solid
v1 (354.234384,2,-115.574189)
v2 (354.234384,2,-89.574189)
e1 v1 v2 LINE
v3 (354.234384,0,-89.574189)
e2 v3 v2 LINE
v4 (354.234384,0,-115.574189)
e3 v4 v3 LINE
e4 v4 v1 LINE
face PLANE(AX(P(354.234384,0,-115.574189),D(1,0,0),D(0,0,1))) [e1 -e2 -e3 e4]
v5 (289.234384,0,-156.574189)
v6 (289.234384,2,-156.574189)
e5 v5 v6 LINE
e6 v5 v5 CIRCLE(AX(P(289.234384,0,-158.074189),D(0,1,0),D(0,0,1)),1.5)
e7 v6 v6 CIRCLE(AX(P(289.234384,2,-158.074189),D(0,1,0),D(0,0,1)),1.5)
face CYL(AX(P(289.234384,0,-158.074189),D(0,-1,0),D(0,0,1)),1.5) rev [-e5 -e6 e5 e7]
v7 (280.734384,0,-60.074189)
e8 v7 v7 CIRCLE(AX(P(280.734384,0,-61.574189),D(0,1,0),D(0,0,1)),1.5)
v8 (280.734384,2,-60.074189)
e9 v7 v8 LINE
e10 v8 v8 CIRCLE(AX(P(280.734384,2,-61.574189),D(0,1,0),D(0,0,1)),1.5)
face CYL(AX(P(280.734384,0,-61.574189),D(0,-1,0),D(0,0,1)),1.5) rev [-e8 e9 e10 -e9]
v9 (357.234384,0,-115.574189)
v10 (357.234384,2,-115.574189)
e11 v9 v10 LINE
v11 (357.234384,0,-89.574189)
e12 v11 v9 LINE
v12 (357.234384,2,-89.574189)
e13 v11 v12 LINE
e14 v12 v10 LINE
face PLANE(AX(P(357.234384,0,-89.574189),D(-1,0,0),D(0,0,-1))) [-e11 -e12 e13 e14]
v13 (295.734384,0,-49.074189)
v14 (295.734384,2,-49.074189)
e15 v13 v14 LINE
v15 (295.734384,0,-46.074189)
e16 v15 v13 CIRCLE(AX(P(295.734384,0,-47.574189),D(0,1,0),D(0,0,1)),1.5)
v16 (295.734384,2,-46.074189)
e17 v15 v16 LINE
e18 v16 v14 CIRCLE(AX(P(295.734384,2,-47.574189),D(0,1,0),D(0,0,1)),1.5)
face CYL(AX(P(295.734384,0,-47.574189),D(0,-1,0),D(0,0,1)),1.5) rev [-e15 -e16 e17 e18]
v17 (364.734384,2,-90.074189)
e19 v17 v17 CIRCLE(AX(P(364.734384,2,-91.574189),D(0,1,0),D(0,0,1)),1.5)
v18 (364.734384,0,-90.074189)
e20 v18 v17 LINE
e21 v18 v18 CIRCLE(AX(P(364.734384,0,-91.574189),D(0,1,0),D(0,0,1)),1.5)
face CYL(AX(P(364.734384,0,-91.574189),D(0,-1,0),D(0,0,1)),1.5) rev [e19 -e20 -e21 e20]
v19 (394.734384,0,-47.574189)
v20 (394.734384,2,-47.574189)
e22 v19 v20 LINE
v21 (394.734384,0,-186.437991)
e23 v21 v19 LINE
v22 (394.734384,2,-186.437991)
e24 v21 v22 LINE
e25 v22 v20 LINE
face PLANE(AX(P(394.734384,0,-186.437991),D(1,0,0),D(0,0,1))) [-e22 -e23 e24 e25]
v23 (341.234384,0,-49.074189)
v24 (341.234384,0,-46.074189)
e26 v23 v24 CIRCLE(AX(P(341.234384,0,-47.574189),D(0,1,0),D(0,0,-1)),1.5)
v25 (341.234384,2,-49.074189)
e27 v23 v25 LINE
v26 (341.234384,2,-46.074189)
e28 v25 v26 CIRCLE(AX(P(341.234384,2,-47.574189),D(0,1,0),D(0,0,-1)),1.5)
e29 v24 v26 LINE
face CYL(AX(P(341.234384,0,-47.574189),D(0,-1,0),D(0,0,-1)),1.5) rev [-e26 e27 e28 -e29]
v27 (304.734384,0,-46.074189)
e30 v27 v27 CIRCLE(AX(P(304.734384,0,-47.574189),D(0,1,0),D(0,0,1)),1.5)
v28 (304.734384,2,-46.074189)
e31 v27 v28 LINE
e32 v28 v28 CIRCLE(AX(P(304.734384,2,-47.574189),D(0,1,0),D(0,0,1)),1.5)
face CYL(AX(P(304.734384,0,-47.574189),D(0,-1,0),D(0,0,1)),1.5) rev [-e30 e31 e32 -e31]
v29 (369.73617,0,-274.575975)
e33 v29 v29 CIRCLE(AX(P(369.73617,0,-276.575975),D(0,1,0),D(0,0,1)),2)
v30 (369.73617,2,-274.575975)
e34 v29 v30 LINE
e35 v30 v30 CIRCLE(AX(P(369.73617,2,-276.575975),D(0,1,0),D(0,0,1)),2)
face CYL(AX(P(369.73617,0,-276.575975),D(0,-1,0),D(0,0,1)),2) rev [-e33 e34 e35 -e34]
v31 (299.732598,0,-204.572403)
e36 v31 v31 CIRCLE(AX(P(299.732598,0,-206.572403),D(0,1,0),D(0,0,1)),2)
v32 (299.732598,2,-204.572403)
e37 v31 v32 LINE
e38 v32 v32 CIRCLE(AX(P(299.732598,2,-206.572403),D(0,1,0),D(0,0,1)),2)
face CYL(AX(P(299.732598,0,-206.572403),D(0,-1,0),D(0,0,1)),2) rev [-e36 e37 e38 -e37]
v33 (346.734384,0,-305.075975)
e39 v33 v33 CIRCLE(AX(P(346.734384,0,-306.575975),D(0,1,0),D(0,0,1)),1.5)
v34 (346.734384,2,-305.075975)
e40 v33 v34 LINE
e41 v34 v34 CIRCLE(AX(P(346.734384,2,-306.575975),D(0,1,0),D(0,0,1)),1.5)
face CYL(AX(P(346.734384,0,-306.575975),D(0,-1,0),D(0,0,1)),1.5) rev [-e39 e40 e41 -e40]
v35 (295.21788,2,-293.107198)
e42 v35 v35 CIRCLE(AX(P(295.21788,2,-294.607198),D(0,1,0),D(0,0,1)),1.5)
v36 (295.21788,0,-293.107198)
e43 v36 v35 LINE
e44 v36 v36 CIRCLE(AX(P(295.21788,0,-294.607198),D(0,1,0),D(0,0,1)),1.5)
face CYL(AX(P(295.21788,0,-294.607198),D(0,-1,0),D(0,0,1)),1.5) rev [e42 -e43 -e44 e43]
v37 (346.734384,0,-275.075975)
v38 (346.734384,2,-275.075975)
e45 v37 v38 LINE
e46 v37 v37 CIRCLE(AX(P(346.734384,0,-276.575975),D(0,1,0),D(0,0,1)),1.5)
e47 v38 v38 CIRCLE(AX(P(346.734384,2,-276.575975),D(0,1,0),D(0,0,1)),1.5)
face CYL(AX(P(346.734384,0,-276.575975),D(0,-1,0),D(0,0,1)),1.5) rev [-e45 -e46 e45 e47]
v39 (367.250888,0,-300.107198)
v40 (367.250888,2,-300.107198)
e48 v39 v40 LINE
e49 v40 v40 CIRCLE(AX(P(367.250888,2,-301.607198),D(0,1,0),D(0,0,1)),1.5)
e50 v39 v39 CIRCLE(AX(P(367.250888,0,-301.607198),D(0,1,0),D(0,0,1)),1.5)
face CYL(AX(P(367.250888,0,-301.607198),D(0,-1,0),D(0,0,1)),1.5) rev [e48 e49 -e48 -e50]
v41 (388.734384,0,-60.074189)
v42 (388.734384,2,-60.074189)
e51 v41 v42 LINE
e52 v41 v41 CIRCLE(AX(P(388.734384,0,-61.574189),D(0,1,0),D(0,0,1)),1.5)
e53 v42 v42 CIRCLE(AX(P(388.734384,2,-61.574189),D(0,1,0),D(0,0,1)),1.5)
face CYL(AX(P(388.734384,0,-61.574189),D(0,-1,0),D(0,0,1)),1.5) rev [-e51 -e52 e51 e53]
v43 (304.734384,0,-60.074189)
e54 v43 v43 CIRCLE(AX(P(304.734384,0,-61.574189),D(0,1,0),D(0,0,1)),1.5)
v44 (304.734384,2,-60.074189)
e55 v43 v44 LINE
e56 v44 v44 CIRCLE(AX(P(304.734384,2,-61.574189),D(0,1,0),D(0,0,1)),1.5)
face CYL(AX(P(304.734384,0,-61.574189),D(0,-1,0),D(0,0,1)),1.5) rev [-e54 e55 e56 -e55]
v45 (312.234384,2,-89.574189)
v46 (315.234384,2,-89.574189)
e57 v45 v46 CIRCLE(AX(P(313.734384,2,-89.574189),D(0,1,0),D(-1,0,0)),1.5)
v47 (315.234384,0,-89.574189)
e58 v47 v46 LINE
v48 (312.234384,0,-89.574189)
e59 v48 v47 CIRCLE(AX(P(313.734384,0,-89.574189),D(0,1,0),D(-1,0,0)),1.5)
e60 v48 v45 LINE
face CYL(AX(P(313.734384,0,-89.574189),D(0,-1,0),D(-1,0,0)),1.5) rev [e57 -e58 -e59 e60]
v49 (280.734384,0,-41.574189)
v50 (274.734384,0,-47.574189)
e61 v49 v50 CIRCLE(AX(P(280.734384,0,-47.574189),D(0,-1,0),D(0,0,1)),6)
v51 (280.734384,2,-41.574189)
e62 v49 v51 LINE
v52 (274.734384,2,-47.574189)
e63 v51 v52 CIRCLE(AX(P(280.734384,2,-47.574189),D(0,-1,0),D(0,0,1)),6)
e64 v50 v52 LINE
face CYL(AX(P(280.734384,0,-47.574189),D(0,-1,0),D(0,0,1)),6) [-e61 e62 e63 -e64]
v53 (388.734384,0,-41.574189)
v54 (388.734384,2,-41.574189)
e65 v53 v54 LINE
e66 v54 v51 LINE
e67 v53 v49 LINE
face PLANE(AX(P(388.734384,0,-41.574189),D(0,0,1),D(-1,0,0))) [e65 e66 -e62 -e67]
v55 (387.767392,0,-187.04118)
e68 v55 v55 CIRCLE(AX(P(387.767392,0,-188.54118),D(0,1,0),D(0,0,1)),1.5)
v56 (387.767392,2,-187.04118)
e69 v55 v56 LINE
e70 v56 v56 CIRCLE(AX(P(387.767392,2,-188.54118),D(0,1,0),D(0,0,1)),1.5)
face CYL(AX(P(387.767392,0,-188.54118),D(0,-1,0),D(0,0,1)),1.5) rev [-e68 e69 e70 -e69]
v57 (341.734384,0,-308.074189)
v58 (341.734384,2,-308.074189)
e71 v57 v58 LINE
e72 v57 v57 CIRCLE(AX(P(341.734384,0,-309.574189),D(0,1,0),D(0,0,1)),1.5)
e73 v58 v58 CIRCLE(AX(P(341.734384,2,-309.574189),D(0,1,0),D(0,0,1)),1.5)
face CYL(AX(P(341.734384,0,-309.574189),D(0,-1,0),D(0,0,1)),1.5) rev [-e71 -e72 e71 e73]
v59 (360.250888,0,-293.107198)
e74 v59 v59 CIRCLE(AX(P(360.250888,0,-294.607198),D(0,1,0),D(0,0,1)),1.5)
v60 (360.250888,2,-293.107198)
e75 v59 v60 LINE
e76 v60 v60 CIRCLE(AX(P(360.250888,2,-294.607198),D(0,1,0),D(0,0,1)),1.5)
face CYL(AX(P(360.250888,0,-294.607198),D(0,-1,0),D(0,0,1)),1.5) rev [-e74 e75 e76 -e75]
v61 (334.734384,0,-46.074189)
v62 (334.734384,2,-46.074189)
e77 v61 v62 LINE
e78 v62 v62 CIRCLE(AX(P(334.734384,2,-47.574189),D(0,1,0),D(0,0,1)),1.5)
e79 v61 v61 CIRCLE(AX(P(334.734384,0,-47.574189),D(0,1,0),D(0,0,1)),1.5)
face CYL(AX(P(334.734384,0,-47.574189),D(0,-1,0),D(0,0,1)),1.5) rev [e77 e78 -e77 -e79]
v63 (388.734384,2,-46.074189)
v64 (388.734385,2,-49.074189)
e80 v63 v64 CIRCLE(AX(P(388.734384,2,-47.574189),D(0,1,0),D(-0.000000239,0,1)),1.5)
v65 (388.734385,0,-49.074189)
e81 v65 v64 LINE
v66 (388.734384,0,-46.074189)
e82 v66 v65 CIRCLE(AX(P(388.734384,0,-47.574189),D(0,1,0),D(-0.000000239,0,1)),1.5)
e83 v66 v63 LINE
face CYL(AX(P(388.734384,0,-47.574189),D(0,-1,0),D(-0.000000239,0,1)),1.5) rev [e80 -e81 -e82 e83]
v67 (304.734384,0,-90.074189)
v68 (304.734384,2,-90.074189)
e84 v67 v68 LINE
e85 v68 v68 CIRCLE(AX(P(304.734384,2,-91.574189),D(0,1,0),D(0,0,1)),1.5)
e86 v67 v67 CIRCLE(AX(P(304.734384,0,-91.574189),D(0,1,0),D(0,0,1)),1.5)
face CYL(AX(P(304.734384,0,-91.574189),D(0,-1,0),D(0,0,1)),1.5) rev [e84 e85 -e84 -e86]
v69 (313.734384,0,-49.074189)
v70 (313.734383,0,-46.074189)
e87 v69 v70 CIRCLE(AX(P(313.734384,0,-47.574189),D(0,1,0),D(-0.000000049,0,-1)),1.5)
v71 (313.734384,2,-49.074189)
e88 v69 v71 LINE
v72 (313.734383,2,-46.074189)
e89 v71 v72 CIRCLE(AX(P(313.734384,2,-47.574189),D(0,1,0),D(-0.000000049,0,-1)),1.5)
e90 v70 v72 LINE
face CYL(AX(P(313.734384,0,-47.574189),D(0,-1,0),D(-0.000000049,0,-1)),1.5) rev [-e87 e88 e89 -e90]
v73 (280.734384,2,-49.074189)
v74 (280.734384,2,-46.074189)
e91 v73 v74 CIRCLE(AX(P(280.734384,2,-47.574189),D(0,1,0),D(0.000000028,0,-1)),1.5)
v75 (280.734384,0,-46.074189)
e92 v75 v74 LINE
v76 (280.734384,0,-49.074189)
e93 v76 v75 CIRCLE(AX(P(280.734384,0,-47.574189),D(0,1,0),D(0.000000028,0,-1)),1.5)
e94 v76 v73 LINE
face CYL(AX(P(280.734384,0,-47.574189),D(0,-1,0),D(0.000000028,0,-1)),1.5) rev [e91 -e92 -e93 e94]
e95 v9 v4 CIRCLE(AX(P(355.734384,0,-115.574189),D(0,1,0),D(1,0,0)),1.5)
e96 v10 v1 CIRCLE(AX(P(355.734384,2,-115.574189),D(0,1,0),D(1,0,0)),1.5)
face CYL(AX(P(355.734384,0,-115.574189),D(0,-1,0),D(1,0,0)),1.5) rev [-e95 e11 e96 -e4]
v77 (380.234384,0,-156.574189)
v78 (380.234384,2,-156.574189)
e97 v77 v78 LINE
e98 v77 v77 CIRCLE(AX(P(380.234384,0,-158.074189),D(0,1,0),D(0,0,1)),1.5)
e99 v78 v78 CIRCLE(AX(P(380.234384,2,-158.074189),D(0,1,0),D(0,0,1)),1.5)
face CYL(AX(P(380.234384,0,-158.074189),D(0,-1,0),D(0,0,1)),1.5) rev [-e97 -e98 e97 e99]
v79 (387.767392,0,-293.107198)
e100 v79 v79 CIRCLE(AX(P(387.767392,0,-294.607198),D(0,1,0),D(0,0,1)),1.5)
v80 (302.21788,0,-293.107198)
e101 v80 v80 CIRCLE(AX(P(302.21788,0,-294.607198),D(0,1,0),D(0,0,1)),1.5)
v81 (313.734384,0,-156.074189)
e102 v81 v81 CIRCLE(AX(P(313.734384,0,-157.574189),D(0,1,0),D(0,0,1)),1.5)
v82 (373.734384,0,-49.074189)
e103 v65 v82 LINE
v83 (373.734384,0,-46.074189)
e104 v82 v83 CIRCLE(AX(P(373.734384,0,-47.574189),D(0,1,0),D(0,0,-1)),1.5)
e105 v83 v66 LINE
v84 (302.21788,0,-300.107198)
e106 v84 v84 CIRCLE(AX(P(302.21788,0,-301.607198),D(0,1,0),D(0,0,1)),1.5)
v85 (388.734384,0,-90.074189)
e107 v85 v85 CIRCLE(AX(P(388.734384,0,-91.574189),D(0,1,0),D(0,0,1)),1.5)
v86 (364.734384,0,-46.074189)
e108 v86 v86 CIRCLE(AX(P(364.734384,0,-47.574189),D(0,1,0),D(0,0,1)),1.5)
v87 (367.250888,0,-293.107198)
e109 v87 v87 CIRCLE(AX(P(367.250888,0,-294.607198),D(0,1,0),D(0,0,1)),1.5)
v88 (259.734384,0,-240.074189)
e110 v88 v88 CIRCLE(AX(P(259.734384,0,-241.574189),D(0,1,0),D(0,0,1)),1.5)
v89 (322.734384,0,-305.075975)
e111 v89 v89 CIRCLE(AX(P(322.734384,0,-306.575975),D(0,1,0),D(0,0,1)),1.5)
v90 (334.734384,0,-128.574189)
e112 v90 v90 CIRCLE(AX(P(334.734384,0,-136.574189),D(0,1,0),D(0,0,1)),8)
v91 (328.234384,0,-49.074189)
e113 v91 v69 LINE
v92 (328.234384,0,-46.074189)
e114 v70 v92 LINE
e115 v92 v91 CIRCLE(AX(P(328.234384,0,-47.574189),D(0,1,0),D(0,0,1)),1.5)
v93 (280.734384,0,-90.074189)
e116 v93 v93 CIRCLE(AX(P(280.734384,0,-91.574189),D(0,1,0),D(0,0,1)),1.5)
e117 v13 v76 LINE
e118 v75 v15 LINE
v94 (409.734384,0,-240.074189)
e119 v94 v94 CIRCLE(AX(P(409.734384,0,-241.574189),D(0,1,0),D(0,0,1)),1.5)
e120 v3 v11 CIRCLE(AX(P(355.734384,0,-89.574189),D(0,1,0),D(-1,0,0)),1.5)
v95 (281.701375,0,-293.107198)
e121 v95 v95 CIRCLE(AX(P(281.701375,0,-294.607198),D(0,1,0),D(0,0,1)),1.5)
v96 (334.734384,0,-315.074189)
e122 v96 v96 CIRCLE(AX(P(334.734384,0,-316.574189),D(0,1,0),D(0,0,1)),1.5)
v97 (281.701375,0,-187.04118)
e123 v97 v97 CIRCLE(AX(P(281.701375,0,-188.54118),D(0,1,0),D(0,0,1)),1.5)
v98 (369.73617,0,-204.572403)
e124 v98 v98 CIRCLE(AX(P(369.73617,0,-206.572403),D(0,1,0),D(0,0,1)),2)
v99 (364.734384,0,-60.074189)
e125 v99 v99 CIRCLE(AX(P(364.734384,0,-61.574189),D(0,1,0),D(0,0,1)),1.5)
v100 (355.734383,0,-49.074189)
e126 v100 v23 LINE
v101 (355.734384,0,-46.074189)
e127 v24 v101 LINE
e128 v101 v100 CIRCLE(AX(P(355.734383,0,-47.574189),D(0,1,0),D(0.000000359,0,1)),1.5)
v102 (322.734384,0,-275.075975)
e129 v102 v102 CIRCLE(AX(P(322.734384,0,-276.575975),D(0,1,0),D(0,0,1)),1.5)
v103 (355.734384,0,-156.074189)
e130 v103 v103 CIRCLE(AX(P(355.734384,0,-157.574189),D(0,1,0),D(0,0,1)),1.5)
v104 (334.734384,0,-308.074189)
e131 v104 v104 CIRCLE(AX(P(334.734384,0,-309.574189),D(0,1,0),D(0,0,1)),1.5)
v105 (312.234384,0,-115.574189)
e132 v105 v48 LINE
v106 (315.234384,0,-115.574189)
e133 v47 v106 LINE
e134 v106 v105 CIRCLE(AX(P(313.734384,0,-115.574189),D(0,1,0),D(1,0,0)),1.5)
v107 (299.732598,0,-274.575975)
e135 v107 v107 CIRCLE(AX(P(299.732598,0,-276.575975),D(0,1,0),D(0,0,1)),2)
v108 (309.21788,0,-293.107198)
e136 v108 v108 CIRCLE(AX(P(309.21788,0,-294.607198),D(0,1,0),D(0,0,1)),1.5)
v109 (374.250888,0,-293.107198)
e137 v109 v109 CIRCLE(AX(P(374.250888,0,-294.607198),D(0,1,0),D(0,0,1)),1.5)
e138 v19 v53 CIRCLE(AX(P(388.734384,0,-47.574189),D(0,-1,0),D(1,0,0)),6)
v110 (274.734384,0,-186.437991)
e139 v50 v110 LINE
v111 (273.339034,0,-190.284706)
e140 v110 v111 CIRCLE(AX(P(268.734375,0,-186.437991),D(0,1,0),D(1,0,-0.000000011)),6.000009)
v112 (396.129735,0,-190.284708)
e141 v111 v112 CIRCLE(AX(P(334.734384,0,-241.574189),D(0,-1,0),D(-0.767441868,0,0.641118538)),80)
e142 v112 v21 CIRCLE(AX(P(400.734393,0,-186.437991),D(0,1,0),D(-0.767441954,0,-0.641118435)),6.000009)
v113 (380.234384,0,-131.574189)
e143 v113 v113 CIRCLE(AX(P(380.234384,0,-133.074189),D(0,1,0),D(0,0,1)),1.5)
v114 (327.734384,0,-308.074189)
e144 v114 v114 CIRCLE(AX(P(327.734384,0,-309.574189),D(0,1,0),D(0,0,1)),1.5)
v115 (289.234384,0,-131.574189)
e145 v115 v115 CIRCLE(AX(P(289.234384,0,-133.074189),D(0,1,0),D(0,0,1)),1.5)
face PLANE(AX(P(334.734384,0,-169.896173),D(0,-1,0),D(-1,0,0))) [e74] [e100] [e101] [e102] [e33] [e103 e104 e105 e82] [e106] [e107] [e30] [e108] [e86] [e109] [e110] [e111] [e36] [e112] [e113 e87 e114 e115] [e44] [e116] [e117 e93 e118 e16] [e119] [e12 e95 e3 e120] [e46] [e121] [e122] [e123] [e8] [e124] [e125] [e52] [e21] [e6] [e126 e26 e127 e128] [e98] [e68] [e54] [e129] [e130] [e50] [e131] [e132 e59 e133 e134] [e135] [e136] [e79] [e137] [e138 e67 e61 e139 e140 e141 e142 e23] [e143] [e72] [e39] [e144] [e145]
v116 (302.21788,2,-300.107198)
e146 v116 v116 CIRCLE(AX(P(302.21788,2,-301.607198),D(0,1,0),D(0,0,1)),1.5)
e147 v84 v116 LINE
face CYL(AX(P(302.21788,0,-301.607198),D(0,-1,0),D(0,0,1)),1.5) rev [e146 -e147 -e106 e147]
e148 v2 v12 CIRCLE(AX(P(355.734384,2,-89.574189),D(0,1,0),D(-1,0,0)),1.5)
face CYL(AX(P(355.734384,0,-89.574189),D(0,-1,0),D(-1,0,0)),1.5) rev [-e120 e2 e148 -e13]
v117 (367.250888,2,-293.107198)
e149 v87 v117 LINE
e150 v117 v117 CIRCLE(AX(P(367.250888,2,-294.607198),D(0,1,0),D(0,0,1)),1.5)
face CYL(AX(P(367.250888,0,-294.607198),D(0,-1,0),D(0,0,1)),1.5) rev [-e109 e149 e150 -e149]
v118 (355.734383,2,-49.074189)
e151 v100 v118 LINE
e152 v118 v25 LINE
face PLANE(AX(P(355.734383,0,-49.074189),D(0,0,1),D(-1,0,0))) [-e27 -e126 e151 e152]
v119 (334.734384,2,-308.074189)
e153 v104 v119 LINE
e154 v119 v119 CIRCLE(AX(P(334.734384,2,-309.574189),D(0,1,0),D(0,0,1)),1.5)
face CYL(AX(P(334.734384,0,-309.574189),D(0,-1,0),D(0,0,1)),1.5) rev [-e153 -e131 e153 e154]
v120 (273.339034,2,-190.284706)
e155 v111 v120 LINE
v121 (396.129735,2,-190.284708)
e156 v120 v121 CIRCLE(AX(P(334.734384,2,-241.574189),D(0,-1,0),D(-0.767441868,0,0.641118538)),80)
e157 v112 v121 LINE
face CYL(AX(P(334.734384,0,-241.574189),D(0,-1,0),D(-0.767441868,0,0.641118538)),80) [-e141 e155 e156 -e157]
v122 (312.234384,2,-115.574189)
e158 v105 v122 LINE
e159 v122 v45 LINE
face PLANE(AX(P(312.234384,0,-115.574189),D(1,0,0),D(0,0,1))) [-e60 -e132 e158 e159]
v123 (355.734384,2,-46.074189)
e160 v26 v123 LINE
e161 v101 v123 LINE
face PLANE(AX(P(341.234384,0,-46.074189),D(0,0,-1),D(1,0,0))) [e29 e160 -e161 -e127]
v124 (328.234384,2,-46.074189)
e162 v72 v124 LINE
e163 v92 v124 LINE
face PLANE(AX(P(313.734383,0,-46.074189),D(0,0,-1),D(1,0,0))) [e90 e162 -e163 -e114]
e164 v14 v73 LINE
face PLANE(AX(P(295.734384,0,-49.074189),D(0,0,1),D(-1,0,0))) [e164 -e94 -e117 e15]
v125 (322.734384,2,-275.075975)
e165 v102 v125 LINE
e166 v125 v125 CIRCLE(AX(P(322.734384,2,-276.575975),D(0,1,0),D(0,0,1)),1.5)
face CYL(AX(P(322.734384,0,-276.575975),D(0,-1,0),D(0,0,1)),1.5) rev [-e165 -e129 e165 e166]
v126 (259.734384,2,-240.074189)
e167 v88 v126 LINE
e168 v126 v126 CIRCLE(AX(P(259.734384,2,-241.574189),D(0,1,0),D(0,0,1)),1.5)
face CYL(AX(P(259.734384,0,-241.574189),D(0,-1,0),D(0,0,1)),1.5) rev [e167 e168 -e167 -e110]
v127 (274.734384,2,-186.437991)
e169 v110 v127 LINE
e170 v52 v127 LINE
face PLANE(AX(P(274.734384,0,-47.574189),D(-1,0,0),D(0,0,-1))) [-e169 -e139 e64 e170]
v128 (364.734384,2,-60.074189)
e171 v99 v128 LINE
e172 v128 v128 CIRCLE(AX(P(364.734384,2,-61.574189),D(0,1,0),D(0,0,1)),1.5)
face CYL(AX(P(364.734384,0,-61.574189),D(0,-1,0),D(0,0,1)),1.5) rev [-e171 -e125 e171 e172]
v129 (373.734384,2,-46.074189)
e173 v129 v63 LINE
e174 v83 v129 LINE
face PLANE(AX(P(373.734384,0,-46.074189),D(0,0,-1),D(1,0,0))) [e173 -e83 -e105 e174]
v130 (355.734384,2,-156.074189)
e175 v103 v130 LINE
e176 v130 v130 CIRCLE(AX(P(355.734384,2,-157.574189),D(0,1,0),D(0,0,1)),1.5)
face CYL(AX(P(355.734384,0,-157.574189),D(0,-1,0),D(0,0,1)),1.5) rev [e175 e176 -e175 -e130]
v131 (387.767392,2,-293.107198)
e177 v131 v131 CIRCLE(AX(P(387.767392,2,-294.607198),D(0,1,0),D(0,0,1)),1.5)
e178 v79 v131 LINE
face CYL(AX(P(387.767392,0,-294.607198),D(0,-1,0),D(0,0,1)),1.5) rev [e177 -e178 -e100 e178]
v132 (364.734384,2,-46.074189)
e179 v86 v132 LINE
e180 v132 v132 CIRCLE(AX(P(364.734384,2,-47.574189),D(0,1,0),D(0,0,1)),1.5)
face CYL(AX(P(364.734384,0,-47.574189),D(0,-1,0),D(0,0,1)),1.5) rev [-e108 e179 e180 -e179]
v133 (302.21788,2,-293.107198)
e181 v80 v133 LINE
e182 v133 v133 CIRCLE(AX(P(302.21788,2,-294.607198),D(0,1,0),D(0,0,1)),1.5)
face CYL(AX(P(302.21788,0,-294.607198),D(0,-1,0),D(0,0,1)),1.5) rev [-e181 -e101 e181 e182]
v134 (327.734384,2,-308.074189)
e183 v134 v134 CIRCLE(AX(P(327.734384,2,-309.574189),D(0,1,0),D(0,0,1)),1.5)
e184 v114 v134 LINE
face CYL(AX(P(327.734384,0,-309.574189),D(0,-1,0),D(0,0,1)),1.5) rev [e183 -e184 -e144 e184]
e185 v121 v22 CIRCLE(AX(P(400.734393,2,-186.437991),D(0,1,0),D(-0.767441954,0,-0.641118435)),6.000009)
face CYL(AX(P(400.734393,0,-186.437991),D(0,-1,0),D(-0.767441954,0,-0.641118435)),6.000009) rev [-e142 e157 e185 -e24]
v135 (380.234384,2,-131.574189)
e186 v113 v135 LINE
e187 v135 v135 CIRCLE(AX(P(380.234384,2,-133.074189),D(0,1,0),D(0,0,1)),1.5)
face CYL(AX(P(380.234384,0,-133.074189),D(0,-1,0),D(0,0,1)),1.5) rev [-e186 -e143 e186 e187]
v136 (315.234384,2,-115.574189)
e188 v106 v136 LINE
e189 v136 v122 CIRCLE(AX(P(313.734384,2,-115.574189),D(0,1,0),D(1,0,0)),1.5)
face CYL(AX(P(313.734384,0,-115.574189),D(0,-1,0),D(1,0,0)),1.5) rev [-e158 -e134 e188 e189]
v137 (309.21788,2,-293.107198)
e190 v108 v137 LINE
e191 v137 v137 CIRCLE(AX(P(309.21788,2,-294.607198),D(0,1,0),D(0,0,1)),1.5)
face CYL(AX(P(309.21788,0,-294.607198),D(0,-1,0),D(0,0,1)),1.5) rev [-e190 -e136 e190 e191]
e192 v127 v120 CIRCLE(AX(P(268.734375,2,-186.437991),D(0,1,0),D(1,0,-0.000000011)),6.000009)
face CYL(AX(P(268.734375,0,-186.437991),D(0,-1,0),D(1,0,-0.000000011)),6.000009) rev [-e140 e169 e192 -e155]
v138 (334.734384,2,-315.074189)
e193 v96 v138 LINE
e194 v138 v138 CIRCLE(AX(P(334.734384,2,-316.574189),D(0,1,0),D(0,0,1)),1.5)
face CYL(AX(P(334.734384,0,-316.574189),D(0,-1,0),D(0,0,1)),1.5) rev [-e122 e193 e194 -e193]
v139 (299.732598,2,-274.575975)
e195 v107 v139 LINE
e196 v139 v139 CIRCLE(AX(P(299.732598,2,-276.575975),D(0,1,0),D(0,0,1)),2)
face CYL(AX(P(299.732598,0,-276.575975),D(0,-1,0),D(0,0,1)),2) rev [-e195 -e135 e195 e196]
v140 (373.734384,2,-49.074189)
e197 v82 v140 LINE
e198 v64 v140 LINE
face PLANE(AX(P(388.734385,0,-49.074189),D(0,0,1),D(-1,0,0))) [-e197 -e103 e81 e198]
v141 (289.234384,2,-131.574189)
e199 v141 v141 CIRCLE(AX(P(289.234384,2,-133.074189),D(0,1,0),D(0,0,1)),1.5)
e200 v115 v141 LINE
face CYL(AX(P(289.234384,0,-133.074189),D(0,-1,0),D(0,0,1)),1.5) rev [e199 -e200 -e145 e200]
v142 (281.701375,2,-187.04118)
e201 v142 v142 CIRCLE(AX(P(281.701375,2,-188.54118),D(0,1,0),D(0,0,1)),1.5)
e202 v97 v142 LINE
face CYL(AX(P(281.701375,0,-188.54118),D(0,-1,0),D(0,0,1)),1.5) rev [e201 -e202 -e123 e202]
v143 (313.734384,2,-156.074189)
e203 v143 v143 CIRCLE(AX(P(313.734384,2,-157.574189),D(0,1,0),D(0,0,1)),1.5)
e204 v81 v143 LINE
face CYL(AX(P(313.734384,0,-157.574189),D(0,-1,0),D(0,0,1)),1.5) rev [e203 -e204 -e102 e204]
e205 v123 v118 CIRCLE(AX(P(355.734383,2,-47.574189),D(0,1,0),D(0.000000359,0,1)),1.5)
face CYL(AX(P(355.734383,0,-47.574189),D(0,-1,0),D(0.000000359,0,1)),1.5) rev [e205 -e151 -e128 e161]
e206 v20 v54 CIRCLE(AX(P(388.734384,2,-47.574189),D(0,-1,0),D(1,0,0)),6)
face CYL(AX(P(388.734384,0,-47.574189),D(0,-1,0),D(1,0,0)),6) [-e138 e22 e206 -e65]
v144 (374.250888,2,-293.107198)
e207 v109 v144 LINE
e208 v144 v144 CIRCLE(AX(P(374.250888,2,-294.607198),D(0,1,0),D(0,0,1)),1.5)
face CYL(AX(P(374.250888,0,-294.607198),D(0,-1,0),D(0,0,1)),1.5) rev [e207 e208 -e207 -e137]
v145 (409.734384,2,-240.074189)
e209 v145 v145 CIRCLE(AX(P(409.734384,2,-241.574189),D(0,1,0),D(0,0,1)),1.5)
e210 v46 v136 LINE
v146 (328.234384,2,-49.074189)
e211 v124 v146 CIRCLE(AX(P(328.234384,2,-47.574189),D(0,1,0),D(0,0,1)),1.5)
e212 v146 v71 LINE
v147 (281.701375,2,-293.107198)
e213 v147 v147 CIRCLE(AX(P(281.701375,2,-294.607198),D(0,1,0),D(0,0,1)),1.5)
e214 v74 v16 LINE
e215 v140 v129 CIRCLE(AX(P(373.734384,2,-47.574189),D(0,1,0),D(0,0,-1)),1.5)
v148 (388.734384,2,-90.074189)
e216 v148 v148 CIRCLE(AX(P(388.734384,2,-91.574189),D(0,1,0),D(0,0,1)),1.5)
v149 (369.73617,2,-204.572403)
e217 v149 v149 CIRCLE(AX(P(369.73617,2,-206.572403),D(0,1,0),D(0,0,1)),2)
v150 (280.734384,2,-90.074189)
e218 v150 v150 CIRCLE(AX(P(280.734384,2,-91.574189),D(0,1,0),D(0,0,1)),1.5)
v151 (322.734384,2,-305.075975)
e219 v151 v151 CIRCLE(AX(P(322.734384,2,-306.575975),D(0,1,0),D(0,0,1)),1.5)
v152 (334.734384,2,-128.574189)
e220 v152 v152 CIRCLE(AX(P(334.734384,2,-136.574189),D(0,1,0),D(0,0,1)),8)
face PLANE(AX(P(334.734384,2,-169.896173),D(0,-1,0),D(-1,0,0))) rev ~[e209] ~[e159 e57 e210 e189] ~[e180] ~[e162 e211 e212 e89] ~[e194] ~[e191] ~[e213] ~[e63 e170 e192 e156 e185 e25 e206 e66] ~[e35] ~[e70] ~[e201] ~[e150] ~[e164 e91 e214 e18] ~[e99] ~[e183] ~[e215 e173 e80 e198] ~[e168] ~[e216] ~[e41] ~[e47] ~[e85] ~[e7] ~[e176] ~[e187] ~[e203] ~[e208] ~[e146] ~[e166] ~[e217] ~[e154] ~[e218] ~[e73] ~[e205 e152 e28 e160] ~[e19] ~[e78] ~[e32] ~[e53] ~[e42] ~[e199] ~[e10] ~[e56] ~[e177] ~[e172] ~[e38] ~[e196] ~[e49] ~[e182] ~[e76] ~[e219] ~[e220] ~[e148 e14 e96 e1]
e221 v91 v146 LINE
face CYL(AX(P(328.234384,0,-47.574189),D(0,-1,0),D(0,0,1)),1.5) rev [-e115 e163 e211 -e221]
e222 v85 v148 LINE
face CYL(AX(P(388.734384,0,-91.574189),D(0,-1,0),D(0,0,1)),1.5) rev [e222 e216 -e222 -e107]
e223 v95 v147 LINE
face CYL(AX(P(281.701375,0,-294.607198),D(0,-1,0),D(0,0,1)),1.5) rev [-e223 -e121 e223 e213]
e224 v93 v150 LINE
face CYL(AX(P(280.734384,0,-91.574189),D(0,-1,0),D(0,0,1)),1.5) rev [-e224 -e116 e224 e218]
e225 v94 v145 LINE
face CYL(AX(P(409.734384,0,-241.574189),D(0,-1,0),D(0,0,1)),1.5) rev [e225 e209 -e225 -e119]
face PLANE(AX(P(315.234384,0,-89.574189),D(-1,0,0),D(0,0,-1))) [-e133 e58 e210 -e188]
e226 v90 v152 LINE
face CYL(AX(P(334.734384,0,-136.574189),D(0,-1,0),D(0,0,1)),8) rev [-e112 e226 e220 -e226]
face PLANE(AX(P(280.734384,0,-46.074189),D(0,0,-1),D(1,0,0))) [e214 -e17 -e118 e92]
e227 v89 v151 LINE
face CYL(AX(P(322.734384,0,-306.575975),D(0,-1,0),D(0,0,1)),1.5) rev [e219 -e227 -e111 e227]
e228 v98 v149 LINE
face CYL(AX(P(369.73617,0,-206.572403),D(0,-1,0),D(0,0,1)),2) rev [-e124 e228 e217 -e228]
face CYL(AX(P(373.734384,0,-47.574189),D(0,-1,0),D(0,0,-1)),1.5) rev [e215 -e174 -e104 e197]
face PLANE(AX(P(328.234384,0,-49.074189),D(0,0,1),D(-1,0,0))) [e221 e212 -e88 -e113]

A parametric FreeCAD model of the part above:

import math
import FreeCAD as App
import Part
import Sketcher
from FreeCAD import Vector
Q = App.Units.Quantity

doc = App.newDocument("Part")
body = doc.addObject("PartDesign::Body", "Body")

sketch1 = body.newObject("Sketcher::SketchObject", "Sketch")
sketch1.AttachmentSupport = (doc.getObject("XZ_Plane"), [""])
sketch1.MapMode = "FlatFace"
sketch1.addGeometry([
    Part.LineSegment(Vector(394.734384, -47.574189, 0), Vector(394.734384, -186.437991, 0)),
    Part.ArcOfCircle(Part.Circle(Vector(400.734393, -186.437991, 0), Vector(0, 0, 1), 6.000009), math.radians(-180), math.radians(-140.124731)),
    Part.ArcOfCircle(Part.Circle(Vector(334.734384, -241.574189, 0), Vector(0, 0, 1), 80), math.radians(140.124723), math.radians(399.875275)),
    Part.ArcOfCircle(Part.Circle(Vector(268.734375, -186.437991, 0), Vector(0, 0, 1), 6.000009), math.radians(-39.875256), math.radians(-0.000001)),
    Part.LineSegment(Vector(274.734384, -186.437991, 0), Vector(274.734384, -47.574189, 0)),
    Part.ArcOfCircle(Part.Circle(Vector(280.734384, -47.574189, 0), Vector(0, 0, 1), 6), math.radians(90), math.radians(180)),
    Part.LineSegment(Vector(280.734384, -41.574189, 0), Vector(388.734384, -41.574189, 0)),
    Part.ArcOfCircle(Part.Circle(Vector(388.734384, -47.574189, 0), Vector(0, 0, 1), 6), math.radians(0), math.radians(90.000004)),
    Part.Circle(Vector(388.734384, -61.574189, 0), Vector(0, 0, 1), 1.5),
    Part.ArcOfCircle(Part.Circle(Vector(373.734384, -47.574189, 0), Vector(0, 0, 1), 1.5), math.radians(90), math.radians(270)),
    Part.LineSegment(Vector(373.734384, -49.074189, 0), Vector(388.734385, -49.074189, 0)),
    Part.ArcOfCircle(Part.Circle(Vector(388.734384, -47.574189, 0), Vector(0, 0, 1), 1.5), math.radians(-89.999986), math.radians(90.000014)),
    Part.LineSegment(Vector(388.734384, -46.074189, 0), Vector(373.734384, -46.074189, 0)),
    Part.Circle(Vector(388.734384, -91.574189, 0), Vector(0, 0, 1), 1.5),
    Part.Circle(Vector(364.734384, -47.574189, 0), Vector(0, 0, 1), 1.5),
    Part.Circle(Vector(364.734384, -61.574189, 0), Vector(0, 0, 1), 1.5),
    Part.ArcOfCircle(Part.Circle(Vector(341.234384, -47.574189, 0), Vector(0, 0, 1), 1.5), math.radians(90), math.radians(270)),
    Part.LineSegment(Vector(341.234384, -49.074189, 0), Vector(355.734383, -49.074189, 0)),
    Part.ArcOfCircle(Part.Circle(Vector(355.734383, -47.574189, 0), Vector(0, 0, 1), 1.5), math.radians(-90.000021), math.radians(89.999979)),
    Part.LineSegment(Vector(355.734384, -46.074189, 0), Vector(341.234384, -46.074189, 0)),
    Part.Circle(Vector(364.734384, -91.574189, 0), Vector(0, 0, 1), 1.5),
    Part.ArcOfCircle(Part.Circle(Vector(355.734384, -115.574189, 0), Vector(0, 0, 1), 1.5), math.radians(180), math.radians(360)),
    Part.LineSegment(Vector(357.234384, -115.574189, 0), Vector(357.234384, -89.574189, 0)),
    Part.ArcOfCircle(Part.Circle(Vector(355.734384, -89.574189, 0), Vector(0, 0, 1), 1.5), math.radians(0), math.radians(180)),
    Part.LineSegment(Vector(354.234384, -89.574189, 0), Vector(354.234384, -115.574189, 0)),
    Part.Circle(Vector(380.234384, -133.074189, 0), Vector(0, 0, 1), 1.5),
    Part.Circle(Vector(380.234384, -158.074189, 0), Vector(0, 0, 1), 1.5),
    Part.Circle(Vector(355.734384, -157.574189, 0), Vector(0, 0, 1), 1.5),
    Part.Circle(Vector(334.734384, -47.574189, 0), Vector(0, 0, 1), 1.5),
    Part.ArcOfCircle(Part.Circle(Vector(328.234384, -47.574189, 0), Vector(0, 0, 1), 1.5), math.radians(-90), math.radians(90)),
    Part.LineSegment(Vector(328.234384, -46.074189, 0), Vector(313.734383, -46.074189, 0)),
    Part.ArcOfCircle(Part.Circle(Vector(313.734384, -47.574189, 0), Vector(0, 0, 1), 1.5), math.radians(90.000038), math.radians(269.999997)),
    Part.LineSegment(Vector(313.734384, -49.074189, 0), Vector(328.234384, -49.074189, 0)),
    Part.Circle(Vector(304.734384, -47.574189, 0), Vector(0, 0, 1), 1.5),
    Part.Circle(Vector(304.734384, -61.574189, 0), Vector(0, 0, 1), 1.5),
    Part.Circle(Vector(304.734384, -91.574189, 0), Vector(0, 0, 1), 1.5),
    Part.ArcOfCircle(Part.Circle(Vector(313.734384, -115.574189, 0), Vector(0, 0, 1), 1.5), math.radians(180), math.radians(360)),
    Part.LineSegment(Vector(315.234384, -115.574189, 0), Vector(315.234384, -89.574189, 0)),
    Part.ArcOfCircle(Part.Circle(Vector(313.734384, -89.574189, 0), Vector(0, 0, 1), 1.5), math.radians(0), math.radians(180)),
    Part.LineSegment(Vector(312.234384, -89.574189, 0), Vector(312.234384, -115.574189, 0)),
    Part.ArcOfCircle(Part.Circle(Vector(295.734384, -47.574189, 0), Vector(0, 0, 1), 1.5), math.radians(-90), math.radians(90)),
    Part.LineSegment(Vector(295.734384, -46.074189, 0), Vector(280.734384, -46.074189, 0)),
    Part.ArcOfCircle(Part.Circle(Vector(280.734384, -47.574189, 0), Vector(0, 0, 1), 1.5), math.radians(90.000007), math.radians(270.000002)),
    Part.LineSegment(Vector(280.734384, -49.074189, 0), Vector(295.734384, -49.074189, 0)),
    Part.Circle(Vector(280.734384, -61.574189, 0), Vector(0, 0, 1), 1.5),
    Part.Circle(Vector(280.734384, -91.574189, 0), Vector(0, 0, 1), 1.5),
    Part.Circle(Vector(334.734384, -136.574189, 0), Vector(0, 0, 1), 8),
    Part.Circle(Vector(313.734384, -157.574189, 0), Vector(0, 0, 1), 1.5),
    Part.Circle(Vector(289.234384, -133.074189, 0), Vector(0, 0, 1), 1.5),
    Part.Circle(Vector(289.234384, -158.074189, 0), Vector(0, 0, 1), 1.5),
    Part.Circle(Vector(387.767392, -188.54118, 0), Vector(0, 0, 1), 1.5),
    Part.Circle(Vector(409.734384, -241.574189, 0), Vector(0, 0, 1), 1.5),
    Part.Circle(Vector(369.73617, -206.572403, 0), Vector(0, 0, 1), 2),
    Part.Circle(Vector(387.767392, -294.607198, 0), Vector(0, 0, 1), 1.5),
    Part.Circle(Vector(374.250888, -294.607198, 0), Vector(0, 0, 1), 1.5),
    Part.Circle(Vector(369.73617, -276.575975, 0), Vector(0, 0, 1), 2),
    Part.Circle(Vector(346.734384, -276.575975, 0), Vector(0, 0, 1), 1.5),
    Part.Circle(Vector(367.250888, -294.607198, 0), Vector(0, 0, 1), 1.5),
    Part.Circle(Vector(360.250888, -294.607198, 0), Vector(0, 0, 1), 1.5),
    Part.Circle(Vector(367.250888, -301.607198, 0), Vector(0, 0, 1), 1.5),
    Part.Circle(Vector(346.734384, -306.575975, 0), Vector(0, 0, 1), 1.5),
    Part.Circle(Vector(341.734384, -309.574189, 0), Vector(0, 0, 1), 1.5),
    Part.Circle(Vector(299.732598, -206.572403, 0), Vector(0, 0, 1), 2),
    Part.Circle(Vector(281.701375, -188.54118, 0), Vector(0, 0, 1), 1.5),
    Part.Circle(Vector(259.734384, -241.574189, 0), Vector(0, 0, 1), 1.5),
    Part.Circle(Vector(322.734384, -276.575975, 0), Vector(0, 0, 1), 1.5),
    Part.Circle(Vector(299.732598, -276.575975, 0), Vector(0, 0, 1), 2),
    Part.Circle(Vector(334.734384, -309.574189, 0), Vector(0, 0, 1), 1.5),
    Part.Circle(Vector(334.734384, -316.574189, 0), Vector(0, 0, 1), 1.5),
    Part.Circle(Vector(327.734384, -309.574189, 0), Vector(0, 0, 1), 1.5),
    Part.Circle(Vector(322.734384, -306.575975, 0), Vector(0, 0, 1), 1.5),
    Part.Circle(Vector(309.21788, -294.607198, 0), Vector(0, 0, 1), 1.5),
    Part.Circle(Vector(302.21788, -294.607198, 0), Vector(0, 0, 1), 1.5),
    Part.Circle(Vector(302.21788, -301.607198, 0), Vector(0, 0, 1), 1.5),
    Part.Circle(Vector(295.21788, -294.607198, 0), Vector(0, 0, 1), 1.5),
    Part.Circle(Vector(281.701375, -294.607198, 0), Vector(0, 0, 1), 1.5),
], False)
sketch1.addConstraint([
    Sketcher.Constraint("Tangent", 0, 2, 1, 1),
    Sketcher.Constraint("Tangent", 1, 2, 2, 2),
    Sketcher.Constraint("Tangent", 2, 1, 3, 1),
    Sketcher.Constraint("Tangent", 3, 2, 4, 1),
    Sketcher.Constraint("Tangent", 4, 2, 5, 2),
    Sketcher.Constraint("Tangent", 5, 1, 6, 1),
    Sketcher.Constraint("Tangent", 6, 2, 7, 2),
    Sketcher.Constraint("Tangent", 7, 1, 0, 1),
    Sketcher.Constraint("Tangent", 9, 2, 10, 1),
    Sketcher.Constraint("Tangent", 10, 2, 11, 1),
    Sketcher.Constraint("Tangent", 11, 2, 12, 1),
    Sketcher.Constraint("Tangent", 12, 2, 9, 1),
    Sketcher.Constraint("Tangent", 16, 2, 17, 1),
    Sketcher.Constraint("Tangent", 17, 2, 18, 1),
    Sketcher.Constraint("Tangent", 18, 2, 19, 1),
    Sketcher.Constraint("Tangent", 19, 2, 16, 1),
    Sketcher.Constraint("Tangent", 21, 2, 22, 1),
    Sketcher.Constraint("Tangent", 22, 2, 23, 1),
    Sketcher.Constraint("Tangent", 23, 2, 24, 1),
    Sketcher.Constraint("Tangent", 24, 2, 21, 1),
    Sketcher.Constraint("Tangent", 29, 2, 30, 1),
    Sketcher.Constraint("Tangent", 30, 2, 31, 1),
    Sketcher.Constraint("Tangent", 31, 2, 32, 1),
    Sketcher.Constraint("Tangent", 32, 2, 29, 1),
    Sketcher.Constraint("Tangent", 36, 2, 37, 1),
    Sketcher.Constraint("Tangent", 37, 2, 38, 1),
    Sketcher.Constraint("Tangent", 38, 2, 39, 1),
    Sketcher.Constraint("Tangent", 39, 2, 36, 1),
    Sketcher.Constraint("Tangent", 40, 2, 41, 1),
    Sketcher.Constraint("Tangent", 41, 2, 42, 1),
    Sketcher.Constraint("Tangent", 42, 2, 43, 1),
    Sketcher.Constraint("Tangent", 43, 2, 40, 1),
    Sketcher.Constraint("Vertical", 0),
    Sketcher.Constraint("Vertical", 4),
    Sketcher.Constraint("Horizontal", 6),
    Sketcher.Constraint("Horizontal", 10),
    Sketcher.Constraint("Horizontal", 12),
    Sketcher.Constraint("Horizontal", 17),
    Sketcher.Constraint("Horizontal", 19),
    Sketcher.Constraint("Vertical", 22),
    Sketcher.Constraint("Vertical", 24),
    Sketcher.Constraint("Horizontal", 30),
    Sketcher.Constraint("Horizontal", 32),
    Sketcher.Constraint("Vertical", 37),
    Sketcher.Constraint("Vertical", 39),
    Sketcher.Constraint("Horizontal", 41),
    Sketcher.Constraint("Horizontal", 43),
    Sketcher.Constraint("Coincident", 11, 3, 7, 3),
    Sketcher.Constraint("Coincident", 42, 3, 5, 3),
    Sketcher.Constraint("Equal", 1, 3),
    Sketcher.Constraint("Equal", 5, 7),
    Sketcher.Constraint("Equal", 8, 9),
    Sketcher.Constraint("Equal", 11, 13),
    Sketcher.Constraint("Equal", 13, 14),
    Sketcher.Constraint("Equal", 14, 15),
    Sketcher.Constraint("Equal", 15, 16),
    Sketcher.Constraint("Equal", 18, 20),
    Sketcher.Constraint("Equal", 20, 21),
    Sketcher.Constraint("Equal", 23, 25),
    Sketcher.Constraint("Equal", 25, 26),
    Sketcher.Constraint("Equal", 26, 27),
    Sketcher.Constraint("Equal", 27, 28),
    Sketcher.Constraint("Equal", 28, 29),
    Sketcher.Constraint("Equal", 31, 33),
    Sketcher.Constraint("Equal", 33, 34),
    Sketcher.Constraint("Equal", 34, 35),
    Sketcher.Constraint("Equal", 35, 36),
    Sketcher.Constraint("Equal", 38, 40),
    Sketcher.Constraint("Equal", 42, 44),
    Sketcher.Constraint("Equal", 44, 45),
    Sketcher.Constraint("Equal", 45, 47),
    Sketcher.Constraint("Equal", 47, 48),
    Sketcher.Constraint("Equal", 48, 49),
    Sketcher.Constraint("Equal", 49, 50),
    Sketcher.Constraint("Equal", 50, 51),
    Sketcher.Constraint("Equal", 51, 53),
    Sketcher.Constraint("Equal", 53, 54),
    Sketcher.Constraint("Equal", 52, 55),
    Sketcher.Constraint("Equal", 54, 56),
    Sketcher.Constraint("Equal", 56, 57),
    Sketcher.Constraint("Equal", 57, 58),
    Sketcher.Constraint("Equal", 58, 59),
    Sketcher.Constraint("Equal", 59, 60),
    Sketcher.Constraint("Equal", 60, 61),
    Sketcher.Constraint("Equal", 55, 62),
    Sketcher.Constraint("Equal", 61, 63),
    Sketcher.Constraint("Equal", 63, 64),
    Sketcher.Constraint("Equal", 64, 65),
    Sketcher.Constraint("Equal", 62, 66),
    Sketcher.Constraint("Equal", 65, 67),
    Sketcher.Constraint("Equal", 67, 68),
    Sketcher.Constraint("Equal", 68, 69),
    Sketcher.Constraint("Equal", 69, 70),
    Sketcher.Constraint("Equal", 70, 71),
    Sketcher.Constraint("Equal", 71, 72),
    Sketcher.Constraint("Equal", 72, 73),
    Sketcher.Constraint("Equal", 73, 74),
    Sketcher.Constraint("Equal", 74, 75),
    Sketcher.Constraint("Horizontal", 1, 3, 3, 3),
    Sketcher.Constraint("Horizontal", 11, 3, 14, 3),
    Sketcher.Constraint("Horizontal", 8, 3, 15, 3),
    Sketcher.Constraint("Horizontal", 14, 3, 16, 3),
    Sketcher.Constraint("Horizontal", 13, 3, 20, 3),
    Sketcher.Constraint("Horizontal", 18, 3, 28, 3),
    Sketcher.Constraint("Horizontal", 28, 3, 29, 3),
    Sketcher.Constraint("Horizontal", 31, 3, 33, 3),
    Sketcher.Constraint("Horizontal", 15, 3, 34, 3),
    Sketcher.Constraint("Horizontal", 20, 3, 35, 3),
    Sketcher.Constraint("Horizontal", 21, 3, 36, 3),
    Sketcher.Constraint("Horizontal", 23, 3, 38, 3),
    Sketcher.Constraint("Horizontal", 34, 3, 44, 3),
    Sketcher.Constraint("Horizontal", 35, 3, 45, 3),
    Sketcher.Constraint("Horizontal", 27, 3, 47, 3),
    Sketcher.Constraint("Horizontal", 25, 3, 48, 3),
    Sketcher.Constraint("Horizontal", 26, 3, 49, 3),
    Sketcher.Constraint("Horizontal", 2, 3, 51, 3),
    Sketcher.Constraint("Horizontal", 53, 3, 54, 3),
    Sketcher.Constraint("Horizontal", 55, 3, 56, 3),
    Sketcher.Constraint("Horizontal", 54, 3, 57, 3),
    Sketcher.Constraint("Horizontal", 57, 3, 58, 3),
    Sketcher.Constraint("Horizontal", 52, 3, 62, 3),
    Sketcher.Constraint("Horizontal", 50, 3, 63, 3),
    Sketcher.Constraint("Horizontal", 51, 3, 64, 3),
    Sketcher.Constraint("Horizontal", 56, 3, 65, 3),
    Sketcher.Constraint("Horizontal", 65, 3, 66, 3),
    Sketcher.Constraint("Horizontal", 61, 3, 67, 3),
    Sketcher.Constraint("Horizontal", 67, 3, 69, 3),
    Sketcher.Constraint("Horizontal", 60, 3, 70, 3),
    Sketcher.Constraint("Horizontal", 58, 3, 71, 3),
    Sketcher.Constraint("Horizontal", 71, 3, 72, 3),
    Sketcher.Constraint("Horizontal", 59, 3, 73, 3),
    Sketcher.Constraint("Horizontal", 72, 3, 74, 3),
    Sketcher.Constraint("Horizontal", 74, 3, 75, 3),
    Sketcher.Constraint("Vertical", 7, 3, 8, 3),
    Sketcher.Constraint("Vertical", 11, 3, 13, 3),
    Sketcher.Constraint("Vertical", 14, 3, 15, 3),
    Sketcher.Constraint("Vertical", 15, 3, 20, 3),
    Sketcher.Constraint("Vertical", 18, 3, 21, 3),
    Sketcher.Constraint("Vertical", 25, 3, 26, 3),
    Sketcher.Constraint("Vertical", 23, 3, 27, 3),
    Sketcher.Constraint("Vertical", 2, 3, 28, 3),
    Sketcher.Constraint("Vertical", 33, 3, 34, 3),
    Sketcher.Constraint("Vertical", 34, 3, 35, 3),
    Sketcher.Constraint("Vertical", 31, 3, 36, 3),
    Sketcher.Constraint("Vertical", 42, 3, 44, 3),
    Sketcher.Constraint("Vertical", 44, 3, 45, 3),
    Sketcher.Constraint("Vertical", 28, 3, 46, 3),
    Sketcher.Constraint("Vertical", 38, 3, 47, 3),
    Sketcher.Constraint("Vertical", 48, 3, 49, 3),
    Sketcher.Constraint("Vertical", 50, 3, 53, 3),
    Sketcher.Constraint("Vertical", 52, 3, 55, 3),
    Sketcher.Constraint("Vertical", 57, 3, 59, 3),
    Sketcher.Constraint("Vertical", 56, 3, 60, 3),
    Sketcher.Constraint("Vertical", 62, 3, 66, 3),
    Sketcher.Constraint("Vertical", 46, 3, 67, 3),
    Sketcher.Constraint("Vertical", 67, 3, 68, 3),
    Sketcher.Constraint("Vertical", 65, 3, 70, 3),
    Sketcher.Constraint("Vertical", 72, 3, 73, 3),
    Sketcher.Constraint("Vertical", 63, 3, 75, 3),
    Sketcher.Constraint("Equal", 19, 30),
    Sketcher.Constraint("Equal", 12, 41),
    Sketcher.Constraint("Diameter", 8, Q("3 mm")),
    Sketcher.Constraint("Diameter", 46, Q("16 mm")),
    Sketcher.Constraint("Diameter", 52, Q("4 mm")),
    Sketcher.Constraint("Radius", 2, Q("80 mm")),
    Sketcher.Constraint("Radius", 5, Q("6 mm")),
    Sketcher.Constraint("DistanceX", 6, 1, 6, 2, Q("108 mm")),
    Sketcher.Constraint("DistanceX", 10, 1, 10, 2, Q("15.000001 mm")),
    Sketcher.Constraint("DistanceY", 22, 1, 22, 2, Q("26 mm")),
    Sketcher.Constraint("DistanceX", 17, 1, 17, 2, Q("14.499999 mm")),
    Sketcher.Constraint("Radius", 1, Q("6.000009 mm")),
    Sketcher.Constraint("DistanceY", 4, 1, 4, 2, Q("138.863802 mm")),
    Sketcher.Constraint("DistanceX", -1, 1, 62, 3, Q("299.732598 mm")),
    Sketcher.Constraint("DistanceY", 1, 3, -1, 1, Q("186.437991 mm")),
    Sketcher.Constraint("DistanceY", 8, 3, -1, 1, Q("61.574189 mm")),
    Sketcher.Constraint("DistanceY", 13, 3, -1, 1, Q("91.574189 mm")),
    Sketcher.Constraint("DistanceY", 21, 3, -1, 1, Q("115.574189 mm")),
    Sketcher.Constraint("DistanceY", 25, 3, -1, 1, Q("133.074189 mm")),
    Sketcher.Constraint("DistanceY", 26, 3, -1, 1, Q("158.074189 mm")),
    Sketcher.Constraint("DistanceY", 27, 3, -1, 1, Q("157.574189 mm")),
    Sketcher.Constraint("DistanceY", 46, 3, -1, 1, Q("136.574189 mm")),
    Sketcher.Constraint("DistanceY", 50, 3, -1, 1, Q("188.54118 mm")),
    Sketcher.Constraint("DistanceX", -1, 1, 52, 3, Q("369.73617 mm")),
    Sketcher.Constraint("DistanceX", -1, 1, 54, 3, Q("374.250888 mm")),
    Sketcher.Constraint("DistanceX", -1, 1, 57, 3, Q("367.250888 mm")),
    Sketcher.Constraint("DistanceX", -1, 1, 58, 3, Q("360.250888 mm")),
    Sketcher.Constraint("DistanceY", 61, 3, -1, 1, Q("309.574189 mm")),
    Sketcher.Constraint("DistanceY", 68, 3, -1, 1, Q("316.574189 mm")),
    Sketcher.Constraint("DistanceX", -1, 1, 71, 3, Q("309.21788 mm")),
    Sketcher.Constraint("DistanceX", -1, 1, 72, 3, Q("302.21788 mm")),
    Sketcher.Constraint("DistanceX", -1, 1, 74, 3, Q("295.21788 mm")),
    Sketcher.Constraint("DistanceX", -1, 1, 1, 3, Q("400.734393 mm")),
    Sketcher.Constraint("DistanceX", -1, 1, 14, 3, Q("364.734384 mm")),
    Sketcher.Constraint("DistanceX", -1, 1, 16, 3, Q("341.234384 mm")),
    Sketcher.Constraint("DistanceX", -1, 1, 25, 3, Q("380.234384 mm")),
    Sketcher.Constraint("DistanceX", -1, 1, 29, 3, Q("328.234384 mm")),
    Sketcher.Constraint("DistanceX", -1, 1, 33, 3, Q("304.734384 mm")),
    Sketcher.Constraint("DistanceX", -1, 1, 48, 3, Q("289.234384 mm")),
    Sketcher.Constraint("DistanceX", -1, 1, 50, 3, Q("387.767392 mm")),
    Sketcher.Constraint("DistanceX", -1, 1, 51, 3, Q("409.734384 mm")),
    Sketcher.Constraint("DistanceY", 52, 3, -1, 1, Q("206.572403 mm")),
    Sketcher.Constraint("DistanceY", 53, 3, -1, 1, Q("294.607198 mm")),
    Sketcher.Constraint("DistanceY", 55, 3, -1, 1, Q("276.575975 mm")),
    Sketcher.Constraint("DistanceX", -1, 1, 56, 3, Q("346.734384 mm")),
    Sketcher.Constraint("DistanceY", 59, 3, -1, 1, Q("301.607198 mm")),
    Sketcher.Constraint("DistanceY", 60, 3, -1, 1, Q("306.575975 mm")),
    Sketcher.Constraint("DistanceX", -1, 1, 61, 3, Q("341.734384 mm")),
    Sketcher.Constraint("DistanceX", -1, 1, 63, 3, Q("281.701375 mm")),
    Sketcher.Constraint("DistanceX", -1, 1, 64, 3, Q("259.734384 mm")),
    Sketcher.Constraint("DistanceX", -1, 1, 65, 3, Q("322.734384 mm")),
    Sketcher.Constraint("DistanceX", -1, 1, 69, 3, Q("327.734384 mm")),
])
pad1 = body.newObject("PartDesign::Pad", "Pad")
pad1.Profile = sketch1
pad1.Length = 2
pad1.Reversed = True

doc.recompute()
